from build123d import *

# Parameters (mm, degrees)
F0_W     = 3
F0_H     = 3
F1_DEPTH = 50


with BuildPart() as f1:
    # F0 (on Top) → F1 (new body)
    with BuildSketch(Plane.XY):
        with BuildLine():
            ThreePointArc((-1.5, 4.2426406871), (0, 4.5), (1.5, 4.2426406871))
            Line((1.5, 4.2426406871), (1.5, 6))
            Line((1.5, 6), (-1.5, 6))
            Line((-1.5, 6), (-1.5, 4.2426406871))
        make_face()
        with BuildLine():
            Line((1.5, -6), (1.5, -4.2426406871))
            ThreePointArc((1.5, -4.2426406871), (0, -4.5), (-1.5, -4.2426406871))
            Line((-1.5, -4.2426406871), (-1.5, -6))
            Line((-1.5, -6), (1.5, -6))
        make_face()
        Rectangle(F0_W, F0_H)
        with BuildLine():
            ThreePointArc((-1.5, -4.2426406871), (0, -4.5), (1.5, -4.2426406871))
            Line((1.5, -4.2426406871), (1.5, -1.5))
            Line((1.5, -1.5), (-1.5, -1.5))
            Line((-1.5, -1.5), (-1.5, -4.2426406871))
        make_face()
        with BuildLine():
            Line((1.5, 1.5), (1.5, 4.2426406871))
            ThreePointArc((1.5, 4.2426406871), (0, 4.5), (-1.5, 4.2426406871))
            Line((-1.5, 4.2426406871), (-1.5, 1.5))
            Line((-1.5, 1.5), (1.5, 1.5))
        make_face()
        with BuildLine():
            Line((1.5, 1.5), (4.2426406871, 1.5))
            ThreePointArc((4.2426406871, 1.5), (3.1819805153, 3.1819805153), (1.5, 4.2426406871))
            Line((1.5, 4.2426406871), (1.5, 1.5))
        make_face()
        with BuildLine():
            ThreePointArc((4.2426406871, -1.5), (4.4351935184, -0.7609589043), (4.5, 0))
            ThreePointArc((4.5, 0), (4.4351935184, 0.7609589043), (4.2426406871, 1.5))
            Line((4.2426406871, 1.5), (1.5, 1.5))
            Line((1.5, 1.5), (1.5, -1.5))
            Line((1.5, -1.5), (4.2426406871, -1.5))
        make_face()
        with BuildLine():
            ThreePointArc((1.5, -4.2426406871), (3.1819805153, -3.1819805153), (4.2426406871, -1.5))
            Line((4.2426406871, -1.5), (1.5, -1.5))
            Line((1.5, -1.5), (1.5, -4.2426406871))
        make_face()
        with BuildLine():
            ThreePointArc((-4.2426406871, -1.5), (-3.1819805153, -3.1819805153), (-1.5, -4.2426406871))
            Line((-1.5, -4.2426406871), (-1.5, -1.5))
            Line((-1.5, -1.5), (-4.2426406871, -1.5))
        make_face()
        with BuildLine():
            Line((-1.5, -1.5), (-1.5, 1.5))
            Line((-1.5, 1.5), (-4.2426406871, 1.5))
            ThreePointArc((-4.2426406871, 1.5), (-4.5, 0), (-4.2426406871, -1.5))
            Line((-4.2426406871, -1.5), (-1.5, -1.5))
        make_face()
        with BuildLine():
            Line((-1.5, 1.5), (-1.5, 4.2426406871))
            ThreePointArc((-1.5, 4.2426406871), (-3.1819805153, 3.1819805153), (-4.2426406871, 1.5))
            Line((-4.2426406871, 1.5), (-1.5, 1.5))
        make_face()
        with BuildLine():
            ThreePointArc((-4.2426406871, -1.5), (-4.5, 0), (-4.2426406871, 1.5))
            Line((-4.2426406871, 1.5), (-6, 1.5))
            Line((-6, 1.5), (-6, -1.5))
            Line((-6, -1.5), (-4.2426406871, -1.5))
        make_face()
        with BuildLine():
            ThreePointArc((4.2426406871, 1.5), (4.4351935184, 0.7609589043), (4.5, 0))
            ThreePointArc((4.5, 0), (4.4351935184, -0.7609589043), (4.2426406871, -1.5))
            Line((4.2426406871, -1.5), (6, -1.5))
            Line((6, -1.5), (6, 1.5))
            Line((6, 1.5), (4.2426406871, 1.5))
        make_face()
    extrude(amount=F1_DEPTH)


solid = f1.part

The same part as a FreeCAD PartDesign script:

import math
import FreeCAD as App
import Part
import Sketcher

V = App.Vector
Q = App.Units.Quantity

doc = App.newDocument("Part")
body = doc.addObject("PartDesign::Body", "Body")

sketch1 = body.newObject("Sketcher::SketchObject", "Sketch")
sketch1.AttachmentSupport = (doc.getObject("XY_Plane"), [""])
sketch1.MapMode = "FlatFace"
sketch1.addGeometry([
    Part.LineSegment(V(1.5, 6, 0), V(-1.5, 6, 0)),
    Part.LineSegment(V(-1.5, 6, 0), V(-1.5, 4.2, 0)),
    Part.ArcOfCircle(Part.Circle(V(0, 0, 0), V(0, 0, 1), 4.5), math.radians(109), math.radians(161)),
    Part.LineSegment(V(-4.2, 1.5, 0), V(-6, 1.5, 0)),
    Part.LineSegment(V(-6, 1.5, 0), V(-6, -1.5, 0)),
    Part.LineSegment(V(-6, -1.5, 0), V(-4.2, -1.5, 0)),
    Part.ArcOfCircle(Part.Circle(V(0, 0, 0), V(0, 0, 1), 4.5), math.radians(-161), math.radians(-109)),
    Part.LineSegment(V(-1.5, -4.2, 0), V(-1.5, -6, 0)),
    Part.LineSegment(V(-1.5, -6, 0), V(1.5, -6, 0)),
    Part.LineSegment(V(1.5, -6, 0), V(1.5, -4.2, 0)),
    Part.ArcOfCircle(Part.Circle(V(0, 0, 0), V(0, 0, 1), 4.5), math.radians(-71), math.radians(-19)),
    Part.LineSegment(V(4.2, -1.5, 0), V(6, -1.5, 0)),
    Part.LineSegment(V(6, -1.5, 0), V(6, 1.5, 0)),
    Part.LineSegment(V(6, 1.5, 0), V(4.2, 1.5, 0)),
    Part.ArcOfCircle(Part.Circle(V(0, 0, 0), V(0, 0, 1), 4.5), math.radians(19), math.radians(71)),
    Part.LineSegment(V(1.5, 4.2, 0), V(1.5, 6, 0)),
], False)
sketch1.addConstraint([
    Sketcher.Constraint("Coincident", 0, 2, 1, 1),
    Sketcher.Constraint("Coincident", 1, 2, 2, 1),
    Sketcher.Constraint("Coincident", 2, 2, 3, 1),
    Sketcher.Constraint("Coincident", 3, 2, 4, 1),
    Sketcher.Constraint("Coincident", 4, 2, 5, 1),
    Sketcher.Constraint("Coincident", 5, 2, 6, 1),
    Sketcher.Constraint("Coincident", 6, 2, 7, 1),
    Sketcher.Constraint("Coincident", 7, 2, 8, 1),
    Sketcher.Constraint("Coincident", 8, 2, 9, 1),
    Sketcher.Constraint("Coincident", 9, 2, 10, 1),
    Sketcher.Constraint("Coincident", 10, 2, 11, 1),
    Sketcher.Constraint("Coincident", 11, 2, 12, 1),
    Sketcher.Constraint("Coincident", 12, 2, 13, 1),
    Sketcher.Constraint("Coincident", 13, 2, 14, 1),
    Sketcher.Constraint("Coincident", 14, 2, 15, 1),
    Sketcher.Constraint("Coincident", 15, 2, 0, 1),
    Sketcher.Constraint("Horizontal", 0),
    Sketcher.Constraint("Vertical", 1),
    Sketcher.Constraint("Horizontal", 3),
    Sketcher.Constraint("Vertical", 4),
    Sketcher.Constraint("Horizontal", 5),
    Sketcher.Constraint("Vertical", 7),
    Sketcher.Constraint("Horizontal", 8),
    Sketcher.Constraint("Vertical", 9),
    Sketcher.Constraint("Horizontal", 11),
    Sketcher.Constraint("Vertical", 12),
    Sketcher.Constraint("Horizontal", 13),
    Sketcher.Constraint("Vertical", 15),
    Sketcher.Constraint("Coincident", 2, 3, -1, 1),
    Sketcher.Constraint("Coincident", 6, 3, -1, 1),
    Sketcher.Constraint("Coincident", 10, 3, -1, 1),
    Sketcher.Constraint("Coincident", 14, 3, -1, 1),
    Sketcher.Constraint("Equal", 2, 6),
    Sketcher.Constraint("Equal", 6, 10),
    Sketcher.Constraint("Equal", 10, 14),
    Sketcher.Constraint("Symmetric", 0, 2, 8, 2, -1, 1),
    Sketcher.Constraint("Symmetric", 3, 2, 11, 2, -1, 1),
    Sketcher.Constraint("Horizontal", 6, 2, 9, 2),
    Sketcher.Constraint("Horizontal", 5, 2, 10, 2),
    Sketcher.Constraint("Horizontal", 3, 2, 12, 2),
    Sketcher.Constraint("Horizontal", 1, 2, 14, 2),
    Sketcher.Constraint("Equal", 13, 1),
    Sketcher.Constraint("Equal", 8, 4),
    Sketcher.Constraint("Radius", 2, Q("4.5 mm")),
    Sketcher.Constraint("DistanceX", 0, 2, 0, 1, Q("3 mm")),
    Sketcher.Constraint("DistanceY", -1, 1, 0, 2, Q("6 mm")),
])
pad1 = body.newObject("PartDesign::Pad", "Pad")
pad1.Profile = sketch1
pad1.Length = 50

doc.recompute()
